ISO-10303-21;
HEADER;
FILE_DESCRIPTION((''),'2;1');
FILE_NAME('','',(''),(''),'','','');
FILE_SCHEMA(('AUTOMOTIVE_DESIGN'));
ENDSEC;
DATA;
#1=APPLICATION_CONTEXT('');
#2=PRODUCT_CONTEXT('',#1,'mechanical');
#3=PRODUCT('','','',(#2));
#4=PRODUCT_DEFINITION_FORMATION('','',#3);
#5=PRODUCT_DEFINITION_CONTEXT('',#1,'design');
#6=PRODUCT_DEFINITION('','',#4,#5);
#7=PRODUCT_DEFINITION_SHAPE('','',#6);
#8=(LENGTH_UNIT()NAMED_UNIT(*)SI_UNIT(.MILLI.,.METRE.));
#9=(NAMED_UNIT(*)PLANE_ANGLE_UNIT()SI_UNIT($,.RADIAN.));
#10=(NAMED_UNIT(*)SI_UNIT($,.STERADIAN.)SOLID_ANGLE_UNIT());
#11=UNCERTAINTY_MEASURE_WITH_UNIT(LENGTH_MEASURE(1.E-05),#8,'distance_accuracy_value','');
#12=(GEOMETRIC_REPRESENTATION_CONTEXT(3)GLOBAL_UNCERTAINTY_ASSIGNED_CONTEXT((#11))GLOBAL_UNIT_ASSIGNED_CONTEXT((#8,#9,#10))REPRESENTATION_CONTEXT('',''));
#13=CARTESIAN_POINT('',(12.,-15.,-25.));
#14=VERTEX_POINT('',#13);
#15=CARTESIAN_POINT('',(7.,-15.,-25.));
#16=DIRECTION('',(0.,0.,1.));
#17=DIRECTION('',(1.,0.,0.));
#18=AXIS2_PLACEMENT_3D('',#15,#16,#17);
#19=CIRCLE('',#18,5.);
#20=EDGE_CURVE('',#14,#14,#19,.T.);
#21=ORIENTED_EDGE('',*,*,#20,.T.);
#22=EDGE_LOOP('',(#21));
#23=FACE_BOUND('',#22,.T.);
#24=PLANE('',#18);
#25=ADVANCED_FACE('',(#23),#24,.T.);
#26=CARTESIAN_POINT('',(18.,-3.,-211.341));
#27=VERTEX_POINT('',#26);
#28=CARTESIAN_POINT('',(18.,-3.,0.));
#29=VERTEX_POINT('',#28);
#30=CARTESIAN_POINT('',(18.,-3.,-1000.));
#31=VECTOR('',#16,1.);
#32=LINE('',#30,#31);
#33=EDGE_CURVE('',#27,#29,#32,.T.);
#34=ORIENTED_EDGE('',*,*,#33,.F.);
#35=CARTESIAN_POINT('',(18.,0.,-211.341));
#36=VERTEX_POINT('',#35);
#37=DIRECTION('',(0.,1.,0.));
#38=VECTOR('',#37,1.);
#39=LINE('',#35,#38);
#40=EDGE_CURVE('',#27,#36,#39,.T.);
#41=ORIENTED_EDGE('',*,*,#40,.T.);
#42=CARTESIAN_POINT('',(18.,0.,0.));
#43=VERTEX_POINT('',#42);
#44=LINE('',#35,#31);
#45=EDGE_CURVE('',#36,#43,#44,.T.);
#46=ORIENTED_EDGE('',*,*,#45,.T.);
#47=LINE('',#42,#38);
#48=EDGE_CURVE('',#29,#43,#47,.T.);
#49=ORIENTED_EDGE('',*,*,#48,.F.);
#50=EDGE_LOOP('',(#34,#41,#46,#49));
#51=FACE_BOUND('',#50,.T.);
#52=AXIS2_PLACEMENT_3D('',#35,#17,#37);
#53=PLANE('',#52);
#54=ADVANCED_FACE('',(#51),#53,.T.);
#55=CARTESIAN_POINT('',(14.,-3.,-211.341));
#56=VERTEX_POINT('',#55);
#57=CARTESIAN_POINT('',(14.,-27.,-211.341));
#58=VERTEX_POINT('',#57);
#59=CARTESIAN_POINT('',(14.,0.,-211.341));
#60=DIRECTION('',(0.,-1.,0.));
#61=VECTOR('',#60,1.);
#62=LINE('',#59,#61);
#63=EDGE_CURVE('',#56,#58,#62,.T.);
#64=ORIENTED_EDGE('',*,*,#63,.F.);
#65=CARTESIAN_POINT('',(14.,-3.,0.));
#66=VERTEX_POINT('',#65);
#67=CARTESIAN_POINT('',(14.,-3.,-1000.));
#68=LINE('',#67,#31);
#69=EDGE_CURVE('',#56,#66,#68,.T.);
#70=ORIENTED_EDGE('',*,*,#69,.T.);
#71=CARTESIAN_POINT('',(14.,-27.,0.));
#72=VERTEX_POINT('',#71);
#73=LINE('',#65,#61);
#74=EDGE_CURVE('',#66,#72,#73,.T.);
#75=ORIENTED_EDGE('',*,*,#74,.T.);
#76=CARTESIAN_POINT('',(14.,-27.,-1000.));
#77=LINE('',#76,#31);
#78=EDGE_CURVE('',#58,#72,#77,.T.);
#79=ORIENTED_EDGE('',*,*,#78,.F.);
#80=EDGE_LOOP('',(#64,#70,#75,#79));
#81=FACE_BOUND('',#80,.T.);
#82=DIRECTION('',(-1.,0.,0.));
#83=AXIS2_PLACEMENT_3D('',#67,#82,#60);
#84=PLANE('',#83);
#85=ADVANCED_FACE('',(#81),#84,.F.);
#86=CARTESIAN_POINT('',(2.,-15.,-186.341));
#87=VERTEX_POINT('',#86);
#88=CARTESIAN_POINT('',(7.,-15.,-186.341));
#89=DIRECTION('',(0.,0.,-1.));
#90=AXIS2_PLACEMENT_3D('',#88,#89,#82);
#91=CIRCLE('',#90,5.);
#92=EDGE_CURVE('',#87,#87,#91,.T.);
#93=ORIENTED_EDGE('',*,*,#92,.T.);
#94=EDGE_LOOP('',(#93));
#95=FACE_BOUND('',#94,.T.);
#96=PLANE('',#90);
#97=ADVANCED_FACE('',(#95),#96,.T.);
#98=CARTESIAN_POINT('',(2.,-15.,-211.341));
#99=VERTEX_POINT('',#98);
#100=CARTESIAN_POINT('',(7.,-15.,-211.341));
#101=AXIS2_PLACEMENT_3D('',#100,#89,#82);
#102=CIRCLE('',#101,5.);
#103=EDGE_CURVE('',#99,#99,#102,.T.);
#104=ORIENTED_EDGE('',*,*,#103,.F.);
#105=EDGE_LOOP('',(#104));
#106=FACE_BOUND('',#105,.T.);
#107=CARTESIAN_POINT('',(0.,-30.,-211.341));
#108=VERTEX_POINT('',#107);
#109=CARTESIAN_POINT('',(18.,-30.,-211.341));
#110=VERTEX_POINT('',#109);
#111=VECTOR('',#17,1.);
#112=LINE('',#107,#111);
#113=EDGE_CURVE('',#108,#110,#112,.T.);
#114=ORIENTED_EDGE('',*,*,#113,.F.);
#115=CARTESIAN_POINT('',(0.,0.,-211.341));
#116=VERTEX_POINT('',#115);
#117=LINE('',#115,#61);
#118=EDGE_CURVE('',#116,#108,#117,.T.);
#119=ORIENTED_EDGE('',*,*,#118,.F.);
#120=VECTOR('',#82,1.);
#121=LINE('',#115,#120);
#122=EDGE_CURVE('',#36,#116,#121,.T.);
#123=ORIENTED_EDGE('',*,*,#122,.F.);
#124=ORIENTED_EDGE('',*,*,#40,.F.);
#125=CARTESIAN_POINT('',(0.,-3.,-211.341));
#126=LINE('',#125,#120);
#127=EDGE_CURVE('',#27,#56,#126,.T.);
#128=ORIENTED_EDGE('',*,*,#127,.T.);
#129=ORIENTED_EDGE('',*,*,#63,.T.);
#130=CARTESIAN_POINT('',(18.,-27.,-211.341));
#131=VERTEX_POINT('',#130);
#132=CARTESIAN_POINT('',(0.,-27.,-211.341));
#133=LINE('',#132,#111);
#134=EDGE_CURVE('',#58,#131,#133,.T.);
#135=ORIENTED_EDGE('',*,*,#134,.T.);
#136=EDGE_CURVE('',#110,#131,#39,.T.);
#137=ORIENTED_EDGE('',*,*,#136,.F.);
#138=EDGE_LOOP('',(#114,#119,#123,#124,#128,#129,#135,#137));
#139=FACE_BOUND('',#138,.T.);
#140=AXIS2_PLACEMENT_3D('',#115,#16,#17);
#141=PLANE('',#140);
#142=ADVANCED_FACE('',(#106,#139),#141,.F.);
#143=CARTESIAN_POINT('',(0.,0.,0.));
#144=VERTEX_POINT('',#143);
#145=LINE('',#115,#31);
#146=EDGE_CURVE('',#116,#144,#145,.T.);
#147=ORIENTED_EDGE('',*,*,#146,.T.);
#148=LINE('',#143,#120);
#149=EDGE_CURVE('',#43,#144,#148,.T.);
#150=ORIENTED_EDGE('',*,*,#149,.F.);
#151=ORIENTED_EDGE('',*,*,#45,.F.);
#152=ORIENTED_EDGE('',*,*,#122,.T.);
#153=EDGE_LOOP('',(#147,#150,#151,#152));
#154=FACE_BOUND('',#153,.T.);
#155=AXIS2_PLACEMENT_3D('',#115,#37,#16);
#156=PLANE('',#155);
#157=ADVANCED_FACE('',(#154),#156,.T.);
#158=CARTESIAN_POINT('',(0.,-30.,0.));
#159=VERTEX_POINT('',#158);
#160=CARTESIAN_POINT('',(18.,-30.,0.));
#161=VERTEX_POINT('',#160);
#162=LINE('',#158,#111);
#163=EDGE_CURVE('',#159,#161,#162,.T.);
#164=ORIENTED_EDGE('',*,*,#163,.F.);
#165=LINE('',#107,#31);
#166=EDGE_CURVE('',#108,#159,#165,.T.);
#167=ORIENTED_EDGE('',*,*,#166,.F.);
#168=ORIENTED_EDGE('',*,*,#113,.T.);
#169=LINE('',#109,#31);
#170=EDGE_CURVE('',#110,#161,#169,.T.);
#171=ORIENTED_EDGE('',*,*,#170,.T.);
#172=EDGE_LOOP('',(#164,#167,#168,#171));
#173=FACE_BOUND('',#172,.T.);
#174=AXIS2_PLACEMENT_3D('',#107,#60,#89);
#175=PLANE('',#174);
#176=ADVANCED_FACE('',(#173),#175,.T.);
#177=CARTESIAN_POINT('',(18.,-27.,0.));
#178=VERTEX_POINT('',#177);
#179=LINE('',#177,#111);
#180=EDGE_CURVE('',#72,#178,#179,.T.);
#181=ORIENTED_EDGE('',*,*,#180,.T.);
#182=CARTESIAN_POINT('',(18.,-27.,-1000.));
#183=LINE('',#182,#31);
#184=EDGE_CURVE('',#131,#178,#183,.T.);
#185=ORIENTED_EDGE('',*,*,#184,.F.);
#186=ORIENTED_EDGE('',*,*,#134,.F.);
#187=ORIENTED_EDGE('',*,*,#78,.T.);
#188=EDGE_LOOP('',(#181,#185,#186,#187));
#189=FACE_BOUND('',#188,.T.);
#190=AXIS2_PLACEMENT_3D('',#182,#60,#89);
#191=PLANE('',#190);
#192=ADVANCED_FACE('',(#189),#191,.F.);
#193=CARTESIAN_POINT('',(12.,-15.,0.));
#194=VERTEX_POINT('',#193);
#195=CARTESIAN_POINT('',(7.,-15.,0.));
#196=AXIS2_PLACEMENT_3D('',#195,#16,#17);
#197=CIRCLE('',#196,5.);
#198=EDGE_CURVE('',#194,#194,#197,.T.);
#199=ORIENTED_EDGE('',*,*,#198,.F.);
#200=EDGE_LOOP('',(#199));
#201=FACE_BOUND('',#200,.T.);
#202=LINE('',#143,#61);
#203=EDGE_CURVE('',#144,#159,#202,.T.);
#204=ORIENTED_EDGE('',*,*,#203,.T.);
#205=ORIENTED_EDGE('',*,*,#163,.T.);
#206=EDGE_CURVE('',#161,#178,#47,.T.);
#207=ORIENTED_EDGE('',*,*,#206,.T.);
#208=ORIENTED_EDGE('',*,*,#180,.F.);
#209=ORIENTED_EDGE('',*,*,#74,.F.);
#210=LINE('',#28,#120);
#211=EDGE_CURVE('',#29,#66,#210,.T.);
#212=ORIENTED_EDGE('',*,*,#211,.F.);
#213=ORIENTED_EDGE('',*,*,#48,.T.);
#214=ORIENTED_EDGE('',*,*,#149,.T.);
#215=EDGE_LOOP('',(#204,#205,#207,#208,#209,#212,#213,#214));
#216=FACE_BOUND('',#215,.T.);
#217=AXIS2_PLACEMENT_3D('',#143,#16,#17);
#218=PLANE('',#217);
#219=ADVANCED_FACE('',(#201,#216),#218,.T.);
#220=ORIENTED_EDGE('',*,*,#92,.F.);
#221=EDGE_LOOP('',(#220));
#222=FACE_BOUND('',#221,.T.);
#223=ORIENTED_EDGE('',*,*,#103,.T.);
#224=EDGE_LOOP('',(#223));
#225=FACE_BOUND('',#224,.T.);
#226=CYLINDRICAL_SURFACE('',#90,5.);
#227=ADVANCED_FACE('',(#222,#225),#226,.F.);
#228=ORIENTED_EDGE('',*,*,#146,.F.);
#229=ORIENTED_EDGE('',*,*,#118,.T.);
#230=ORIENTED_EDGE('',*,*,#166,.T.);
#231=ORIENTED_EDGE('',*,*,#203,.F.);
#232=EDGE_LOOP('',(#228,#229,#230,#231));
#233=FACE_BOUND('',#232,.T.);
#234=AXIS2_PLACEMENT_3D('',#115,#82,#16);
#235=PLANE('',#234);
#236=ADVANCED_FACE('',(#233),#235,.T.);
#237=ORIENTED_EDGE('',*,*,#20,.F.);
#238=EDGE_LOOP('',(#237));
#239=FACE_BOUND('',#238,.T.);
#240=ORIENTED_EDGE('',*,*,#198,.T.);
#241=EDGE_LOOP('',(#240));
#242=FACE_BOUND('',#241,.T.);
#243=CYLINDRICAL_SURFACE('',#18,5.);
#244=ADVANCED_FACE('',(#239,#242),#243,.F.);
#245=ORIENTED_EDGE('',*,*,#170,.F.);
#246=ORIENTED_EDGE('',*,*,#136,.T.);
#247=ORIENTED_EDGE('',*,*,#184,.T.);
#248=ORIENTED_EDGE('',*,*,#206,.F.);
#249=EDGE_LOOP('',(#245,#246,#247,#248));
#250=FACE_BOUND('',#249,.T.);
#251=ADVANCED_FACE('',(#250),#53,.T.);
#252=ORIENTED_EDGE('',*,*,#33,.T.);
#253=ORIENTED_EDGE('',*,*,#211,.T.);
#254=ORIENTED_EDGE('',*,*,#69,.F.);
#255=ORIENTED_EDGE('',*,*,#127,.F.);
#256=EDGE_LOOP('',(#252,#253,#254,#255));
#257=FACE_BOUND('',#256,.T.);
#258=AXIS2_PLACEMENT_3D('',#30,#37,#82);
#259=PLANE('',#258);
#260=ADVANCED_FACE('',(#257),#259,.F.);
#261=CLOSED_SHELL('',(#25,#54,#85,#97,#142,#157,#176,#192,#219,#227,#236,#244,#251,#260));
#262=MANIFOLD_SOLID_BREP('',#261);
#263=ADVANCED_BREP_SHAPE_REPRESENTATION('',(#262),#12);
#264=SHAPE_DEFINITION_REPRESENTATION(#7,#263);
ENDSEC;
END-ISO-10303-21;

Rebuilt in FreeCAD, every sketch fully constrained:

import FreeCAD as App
import Part
import Sketcher

V = App.Vector
Q = App.Units.Quantity

doc = App.newDocument("Part")
body = doc.addObject("PartDesign::Body", "Body")

# Sketch on XY plane
sketch1 = body.newObject("Sketcher::SketchObject", "Sketch")
sketch1.AttachmentSupport = (doc.getObject("XY_Plane"), [""])
sketch1.MapMode = "FlatFace"
sketch1.addGeometry([
    Part.LineSegment(V(0, 0, 0), V(0, -30, 0)),
    Part.LineSegment(V(0, -30, 0), V(18, -30, 0)),
    Part.LineSegment(V(18, -30, 0), V(18, 0, 0)),
    Part.LineSegment(V(18, 0, 0), V(0, 0, 0)),
], False)
sketch1.addConstraint([
    Sketcher.Constraint("Coincident", 0, 2, 1, 1),
    Sketcher.Constraint("Coincident", 1, 2, 2, 1),
    Sketcher.Constraint("Coincident", 2, 2, 3, 1),
    Sketcher.Constraint("Coincident", 3, 2, 0, 1),
    Sketcher.Constraint("Vertical", 0),
    Sketcher.Constraint("Horizontal", 1),
    Sketcher.Constraint("Vertical", 2),
    Sketcher.Constraint("Horizontal", 3),
    Sketcher.Constraint("Coincident", 3, 2, -1, 1),
    Sketcher.Constraint("DistanceX", 1, 1, 1, 2, Q("18 mm")),
    Sketcher.Constraint("DistanceY", 0, 2, 0, 1, Q("30 mm")),
])
pad1 = body.newObject("PartDesign::Pad", "Pad")
pad1.Profile = sketch1
pad1.Length = 211.341
pad1.Reversed = True

# Sketch on XY plane
sketch2 = body.newObject("Sketcher::SketchObject", "Sketch001")
sketch2.AttachmentSupport = (doc.getObject("XY_Plane"), [""])
sketch2.MapMode = "FlatFace"
sketch2.addGeometry([
    Part.LineSegment(V(14, -3, 0), V(14, -27, 0)),
    Part.LineSegment(V(14, -27, 0), V(18, -27, 0)),
    Part.LineSegment(V(18, -27, 0), V(18, -3, 0)),
    Part.LineSegment(V(18, -3, 0), V(14, -3, 0)),
], False)
sketch2.addConstraint([
    Sketcher.Constraint("Coincident", 0, 2, 1, 1),
    Sketcher.Constraint("Coincident", 1, 2, 2, 1),
    Sketcher.Constraint("Coincident", 2, 2, 3, 1),
    Sketcher.Constraint("Coincident", 3, 2, 0, 1),
    Sketcher.Constraint("Vertical", 0),
    Sketcher.Constraint("Horizontal", 1),
    Sketcher.Constraint("Vertical", 2),
    Sketcher.Constraint("Horizontal", 3),
    Sketcher.Constraint("DistanceX", 1, 1, 1, 2, Q("4 mm")),
    Sketcher.Constraint("DistanceY", 0, 2, 0, 1, Q("24 mm")),
    Sketcher.Constraint("DistanceX", -1, 1, 0, 2, Q("14 mm")),
    Sketcher.Constraint("DistanceY", 0, 2, -1, 1, Q("27 mm")),
])
pocket1 = body.newObject("PartDesign::Pocket", "Pocket")
pocket1.Profile = sketch2
pocket1.Length = 1000

# Sketch on XY plane
sketch3 = body.newObject("Sketcher::SketchObject", "Sketch002")
sketch3.AttachmentSupport = (doc.getObject("XY_Plane"), [""])
sketch3.MapMode = "FlatFace"
sketch3.addGeometry(Part.Circle(V(7, -15, 0), V(0, 0, 1), 5), False)
sketch3.addConstraint([
    Sketcher.Constraint("Diameter", 0, Q("10 mm")),
    Sketcher.Constraint("DistanceX", -1, 1, 0, 3, Q("7 mm")),
    Sketcher.Constraint("DistanceY", 0, 3, -1, 1, Q("15 mm")),
])
pocket2 = body.newObject("PartDesign::Pocket", "Pocket001")
pocket2.Profile = sketch3
pocket2.Length = 25

# Sketch on XY plane
sketch4 = body.newObject("Sketcher::SketchObject", "Sketch003")
sketch4.AttachmentSupport = (doc.getObject("XY_Plane"), [""])
sketch4.MapMode = "FlatFace"
sketch4.AttachmentOffset = App.Placement(V(0, 0, -186.341), App.Rotation())
sketch4.addGeometry(Part.Circle(V(7, -15, 0), V(0, 0, 1), 5), False)
sketch4.addConstraint([
    Sketcher.Constraint("Diameter", 0, Q("10 mm")),
    Sketcher.Constraint("DistanceX", -1, 1, 0, 3, Q("7 mm")),
    Sketcher.Constraint("DistanceY", 0, 3, -1, 1, Q("15 mm")),
])
pocket3 = body.newObject("PartDesign::Pocket", "Pocket002")
pocket3.Profile = sketch4
pocket3.Length = 25

doc.recompute()
